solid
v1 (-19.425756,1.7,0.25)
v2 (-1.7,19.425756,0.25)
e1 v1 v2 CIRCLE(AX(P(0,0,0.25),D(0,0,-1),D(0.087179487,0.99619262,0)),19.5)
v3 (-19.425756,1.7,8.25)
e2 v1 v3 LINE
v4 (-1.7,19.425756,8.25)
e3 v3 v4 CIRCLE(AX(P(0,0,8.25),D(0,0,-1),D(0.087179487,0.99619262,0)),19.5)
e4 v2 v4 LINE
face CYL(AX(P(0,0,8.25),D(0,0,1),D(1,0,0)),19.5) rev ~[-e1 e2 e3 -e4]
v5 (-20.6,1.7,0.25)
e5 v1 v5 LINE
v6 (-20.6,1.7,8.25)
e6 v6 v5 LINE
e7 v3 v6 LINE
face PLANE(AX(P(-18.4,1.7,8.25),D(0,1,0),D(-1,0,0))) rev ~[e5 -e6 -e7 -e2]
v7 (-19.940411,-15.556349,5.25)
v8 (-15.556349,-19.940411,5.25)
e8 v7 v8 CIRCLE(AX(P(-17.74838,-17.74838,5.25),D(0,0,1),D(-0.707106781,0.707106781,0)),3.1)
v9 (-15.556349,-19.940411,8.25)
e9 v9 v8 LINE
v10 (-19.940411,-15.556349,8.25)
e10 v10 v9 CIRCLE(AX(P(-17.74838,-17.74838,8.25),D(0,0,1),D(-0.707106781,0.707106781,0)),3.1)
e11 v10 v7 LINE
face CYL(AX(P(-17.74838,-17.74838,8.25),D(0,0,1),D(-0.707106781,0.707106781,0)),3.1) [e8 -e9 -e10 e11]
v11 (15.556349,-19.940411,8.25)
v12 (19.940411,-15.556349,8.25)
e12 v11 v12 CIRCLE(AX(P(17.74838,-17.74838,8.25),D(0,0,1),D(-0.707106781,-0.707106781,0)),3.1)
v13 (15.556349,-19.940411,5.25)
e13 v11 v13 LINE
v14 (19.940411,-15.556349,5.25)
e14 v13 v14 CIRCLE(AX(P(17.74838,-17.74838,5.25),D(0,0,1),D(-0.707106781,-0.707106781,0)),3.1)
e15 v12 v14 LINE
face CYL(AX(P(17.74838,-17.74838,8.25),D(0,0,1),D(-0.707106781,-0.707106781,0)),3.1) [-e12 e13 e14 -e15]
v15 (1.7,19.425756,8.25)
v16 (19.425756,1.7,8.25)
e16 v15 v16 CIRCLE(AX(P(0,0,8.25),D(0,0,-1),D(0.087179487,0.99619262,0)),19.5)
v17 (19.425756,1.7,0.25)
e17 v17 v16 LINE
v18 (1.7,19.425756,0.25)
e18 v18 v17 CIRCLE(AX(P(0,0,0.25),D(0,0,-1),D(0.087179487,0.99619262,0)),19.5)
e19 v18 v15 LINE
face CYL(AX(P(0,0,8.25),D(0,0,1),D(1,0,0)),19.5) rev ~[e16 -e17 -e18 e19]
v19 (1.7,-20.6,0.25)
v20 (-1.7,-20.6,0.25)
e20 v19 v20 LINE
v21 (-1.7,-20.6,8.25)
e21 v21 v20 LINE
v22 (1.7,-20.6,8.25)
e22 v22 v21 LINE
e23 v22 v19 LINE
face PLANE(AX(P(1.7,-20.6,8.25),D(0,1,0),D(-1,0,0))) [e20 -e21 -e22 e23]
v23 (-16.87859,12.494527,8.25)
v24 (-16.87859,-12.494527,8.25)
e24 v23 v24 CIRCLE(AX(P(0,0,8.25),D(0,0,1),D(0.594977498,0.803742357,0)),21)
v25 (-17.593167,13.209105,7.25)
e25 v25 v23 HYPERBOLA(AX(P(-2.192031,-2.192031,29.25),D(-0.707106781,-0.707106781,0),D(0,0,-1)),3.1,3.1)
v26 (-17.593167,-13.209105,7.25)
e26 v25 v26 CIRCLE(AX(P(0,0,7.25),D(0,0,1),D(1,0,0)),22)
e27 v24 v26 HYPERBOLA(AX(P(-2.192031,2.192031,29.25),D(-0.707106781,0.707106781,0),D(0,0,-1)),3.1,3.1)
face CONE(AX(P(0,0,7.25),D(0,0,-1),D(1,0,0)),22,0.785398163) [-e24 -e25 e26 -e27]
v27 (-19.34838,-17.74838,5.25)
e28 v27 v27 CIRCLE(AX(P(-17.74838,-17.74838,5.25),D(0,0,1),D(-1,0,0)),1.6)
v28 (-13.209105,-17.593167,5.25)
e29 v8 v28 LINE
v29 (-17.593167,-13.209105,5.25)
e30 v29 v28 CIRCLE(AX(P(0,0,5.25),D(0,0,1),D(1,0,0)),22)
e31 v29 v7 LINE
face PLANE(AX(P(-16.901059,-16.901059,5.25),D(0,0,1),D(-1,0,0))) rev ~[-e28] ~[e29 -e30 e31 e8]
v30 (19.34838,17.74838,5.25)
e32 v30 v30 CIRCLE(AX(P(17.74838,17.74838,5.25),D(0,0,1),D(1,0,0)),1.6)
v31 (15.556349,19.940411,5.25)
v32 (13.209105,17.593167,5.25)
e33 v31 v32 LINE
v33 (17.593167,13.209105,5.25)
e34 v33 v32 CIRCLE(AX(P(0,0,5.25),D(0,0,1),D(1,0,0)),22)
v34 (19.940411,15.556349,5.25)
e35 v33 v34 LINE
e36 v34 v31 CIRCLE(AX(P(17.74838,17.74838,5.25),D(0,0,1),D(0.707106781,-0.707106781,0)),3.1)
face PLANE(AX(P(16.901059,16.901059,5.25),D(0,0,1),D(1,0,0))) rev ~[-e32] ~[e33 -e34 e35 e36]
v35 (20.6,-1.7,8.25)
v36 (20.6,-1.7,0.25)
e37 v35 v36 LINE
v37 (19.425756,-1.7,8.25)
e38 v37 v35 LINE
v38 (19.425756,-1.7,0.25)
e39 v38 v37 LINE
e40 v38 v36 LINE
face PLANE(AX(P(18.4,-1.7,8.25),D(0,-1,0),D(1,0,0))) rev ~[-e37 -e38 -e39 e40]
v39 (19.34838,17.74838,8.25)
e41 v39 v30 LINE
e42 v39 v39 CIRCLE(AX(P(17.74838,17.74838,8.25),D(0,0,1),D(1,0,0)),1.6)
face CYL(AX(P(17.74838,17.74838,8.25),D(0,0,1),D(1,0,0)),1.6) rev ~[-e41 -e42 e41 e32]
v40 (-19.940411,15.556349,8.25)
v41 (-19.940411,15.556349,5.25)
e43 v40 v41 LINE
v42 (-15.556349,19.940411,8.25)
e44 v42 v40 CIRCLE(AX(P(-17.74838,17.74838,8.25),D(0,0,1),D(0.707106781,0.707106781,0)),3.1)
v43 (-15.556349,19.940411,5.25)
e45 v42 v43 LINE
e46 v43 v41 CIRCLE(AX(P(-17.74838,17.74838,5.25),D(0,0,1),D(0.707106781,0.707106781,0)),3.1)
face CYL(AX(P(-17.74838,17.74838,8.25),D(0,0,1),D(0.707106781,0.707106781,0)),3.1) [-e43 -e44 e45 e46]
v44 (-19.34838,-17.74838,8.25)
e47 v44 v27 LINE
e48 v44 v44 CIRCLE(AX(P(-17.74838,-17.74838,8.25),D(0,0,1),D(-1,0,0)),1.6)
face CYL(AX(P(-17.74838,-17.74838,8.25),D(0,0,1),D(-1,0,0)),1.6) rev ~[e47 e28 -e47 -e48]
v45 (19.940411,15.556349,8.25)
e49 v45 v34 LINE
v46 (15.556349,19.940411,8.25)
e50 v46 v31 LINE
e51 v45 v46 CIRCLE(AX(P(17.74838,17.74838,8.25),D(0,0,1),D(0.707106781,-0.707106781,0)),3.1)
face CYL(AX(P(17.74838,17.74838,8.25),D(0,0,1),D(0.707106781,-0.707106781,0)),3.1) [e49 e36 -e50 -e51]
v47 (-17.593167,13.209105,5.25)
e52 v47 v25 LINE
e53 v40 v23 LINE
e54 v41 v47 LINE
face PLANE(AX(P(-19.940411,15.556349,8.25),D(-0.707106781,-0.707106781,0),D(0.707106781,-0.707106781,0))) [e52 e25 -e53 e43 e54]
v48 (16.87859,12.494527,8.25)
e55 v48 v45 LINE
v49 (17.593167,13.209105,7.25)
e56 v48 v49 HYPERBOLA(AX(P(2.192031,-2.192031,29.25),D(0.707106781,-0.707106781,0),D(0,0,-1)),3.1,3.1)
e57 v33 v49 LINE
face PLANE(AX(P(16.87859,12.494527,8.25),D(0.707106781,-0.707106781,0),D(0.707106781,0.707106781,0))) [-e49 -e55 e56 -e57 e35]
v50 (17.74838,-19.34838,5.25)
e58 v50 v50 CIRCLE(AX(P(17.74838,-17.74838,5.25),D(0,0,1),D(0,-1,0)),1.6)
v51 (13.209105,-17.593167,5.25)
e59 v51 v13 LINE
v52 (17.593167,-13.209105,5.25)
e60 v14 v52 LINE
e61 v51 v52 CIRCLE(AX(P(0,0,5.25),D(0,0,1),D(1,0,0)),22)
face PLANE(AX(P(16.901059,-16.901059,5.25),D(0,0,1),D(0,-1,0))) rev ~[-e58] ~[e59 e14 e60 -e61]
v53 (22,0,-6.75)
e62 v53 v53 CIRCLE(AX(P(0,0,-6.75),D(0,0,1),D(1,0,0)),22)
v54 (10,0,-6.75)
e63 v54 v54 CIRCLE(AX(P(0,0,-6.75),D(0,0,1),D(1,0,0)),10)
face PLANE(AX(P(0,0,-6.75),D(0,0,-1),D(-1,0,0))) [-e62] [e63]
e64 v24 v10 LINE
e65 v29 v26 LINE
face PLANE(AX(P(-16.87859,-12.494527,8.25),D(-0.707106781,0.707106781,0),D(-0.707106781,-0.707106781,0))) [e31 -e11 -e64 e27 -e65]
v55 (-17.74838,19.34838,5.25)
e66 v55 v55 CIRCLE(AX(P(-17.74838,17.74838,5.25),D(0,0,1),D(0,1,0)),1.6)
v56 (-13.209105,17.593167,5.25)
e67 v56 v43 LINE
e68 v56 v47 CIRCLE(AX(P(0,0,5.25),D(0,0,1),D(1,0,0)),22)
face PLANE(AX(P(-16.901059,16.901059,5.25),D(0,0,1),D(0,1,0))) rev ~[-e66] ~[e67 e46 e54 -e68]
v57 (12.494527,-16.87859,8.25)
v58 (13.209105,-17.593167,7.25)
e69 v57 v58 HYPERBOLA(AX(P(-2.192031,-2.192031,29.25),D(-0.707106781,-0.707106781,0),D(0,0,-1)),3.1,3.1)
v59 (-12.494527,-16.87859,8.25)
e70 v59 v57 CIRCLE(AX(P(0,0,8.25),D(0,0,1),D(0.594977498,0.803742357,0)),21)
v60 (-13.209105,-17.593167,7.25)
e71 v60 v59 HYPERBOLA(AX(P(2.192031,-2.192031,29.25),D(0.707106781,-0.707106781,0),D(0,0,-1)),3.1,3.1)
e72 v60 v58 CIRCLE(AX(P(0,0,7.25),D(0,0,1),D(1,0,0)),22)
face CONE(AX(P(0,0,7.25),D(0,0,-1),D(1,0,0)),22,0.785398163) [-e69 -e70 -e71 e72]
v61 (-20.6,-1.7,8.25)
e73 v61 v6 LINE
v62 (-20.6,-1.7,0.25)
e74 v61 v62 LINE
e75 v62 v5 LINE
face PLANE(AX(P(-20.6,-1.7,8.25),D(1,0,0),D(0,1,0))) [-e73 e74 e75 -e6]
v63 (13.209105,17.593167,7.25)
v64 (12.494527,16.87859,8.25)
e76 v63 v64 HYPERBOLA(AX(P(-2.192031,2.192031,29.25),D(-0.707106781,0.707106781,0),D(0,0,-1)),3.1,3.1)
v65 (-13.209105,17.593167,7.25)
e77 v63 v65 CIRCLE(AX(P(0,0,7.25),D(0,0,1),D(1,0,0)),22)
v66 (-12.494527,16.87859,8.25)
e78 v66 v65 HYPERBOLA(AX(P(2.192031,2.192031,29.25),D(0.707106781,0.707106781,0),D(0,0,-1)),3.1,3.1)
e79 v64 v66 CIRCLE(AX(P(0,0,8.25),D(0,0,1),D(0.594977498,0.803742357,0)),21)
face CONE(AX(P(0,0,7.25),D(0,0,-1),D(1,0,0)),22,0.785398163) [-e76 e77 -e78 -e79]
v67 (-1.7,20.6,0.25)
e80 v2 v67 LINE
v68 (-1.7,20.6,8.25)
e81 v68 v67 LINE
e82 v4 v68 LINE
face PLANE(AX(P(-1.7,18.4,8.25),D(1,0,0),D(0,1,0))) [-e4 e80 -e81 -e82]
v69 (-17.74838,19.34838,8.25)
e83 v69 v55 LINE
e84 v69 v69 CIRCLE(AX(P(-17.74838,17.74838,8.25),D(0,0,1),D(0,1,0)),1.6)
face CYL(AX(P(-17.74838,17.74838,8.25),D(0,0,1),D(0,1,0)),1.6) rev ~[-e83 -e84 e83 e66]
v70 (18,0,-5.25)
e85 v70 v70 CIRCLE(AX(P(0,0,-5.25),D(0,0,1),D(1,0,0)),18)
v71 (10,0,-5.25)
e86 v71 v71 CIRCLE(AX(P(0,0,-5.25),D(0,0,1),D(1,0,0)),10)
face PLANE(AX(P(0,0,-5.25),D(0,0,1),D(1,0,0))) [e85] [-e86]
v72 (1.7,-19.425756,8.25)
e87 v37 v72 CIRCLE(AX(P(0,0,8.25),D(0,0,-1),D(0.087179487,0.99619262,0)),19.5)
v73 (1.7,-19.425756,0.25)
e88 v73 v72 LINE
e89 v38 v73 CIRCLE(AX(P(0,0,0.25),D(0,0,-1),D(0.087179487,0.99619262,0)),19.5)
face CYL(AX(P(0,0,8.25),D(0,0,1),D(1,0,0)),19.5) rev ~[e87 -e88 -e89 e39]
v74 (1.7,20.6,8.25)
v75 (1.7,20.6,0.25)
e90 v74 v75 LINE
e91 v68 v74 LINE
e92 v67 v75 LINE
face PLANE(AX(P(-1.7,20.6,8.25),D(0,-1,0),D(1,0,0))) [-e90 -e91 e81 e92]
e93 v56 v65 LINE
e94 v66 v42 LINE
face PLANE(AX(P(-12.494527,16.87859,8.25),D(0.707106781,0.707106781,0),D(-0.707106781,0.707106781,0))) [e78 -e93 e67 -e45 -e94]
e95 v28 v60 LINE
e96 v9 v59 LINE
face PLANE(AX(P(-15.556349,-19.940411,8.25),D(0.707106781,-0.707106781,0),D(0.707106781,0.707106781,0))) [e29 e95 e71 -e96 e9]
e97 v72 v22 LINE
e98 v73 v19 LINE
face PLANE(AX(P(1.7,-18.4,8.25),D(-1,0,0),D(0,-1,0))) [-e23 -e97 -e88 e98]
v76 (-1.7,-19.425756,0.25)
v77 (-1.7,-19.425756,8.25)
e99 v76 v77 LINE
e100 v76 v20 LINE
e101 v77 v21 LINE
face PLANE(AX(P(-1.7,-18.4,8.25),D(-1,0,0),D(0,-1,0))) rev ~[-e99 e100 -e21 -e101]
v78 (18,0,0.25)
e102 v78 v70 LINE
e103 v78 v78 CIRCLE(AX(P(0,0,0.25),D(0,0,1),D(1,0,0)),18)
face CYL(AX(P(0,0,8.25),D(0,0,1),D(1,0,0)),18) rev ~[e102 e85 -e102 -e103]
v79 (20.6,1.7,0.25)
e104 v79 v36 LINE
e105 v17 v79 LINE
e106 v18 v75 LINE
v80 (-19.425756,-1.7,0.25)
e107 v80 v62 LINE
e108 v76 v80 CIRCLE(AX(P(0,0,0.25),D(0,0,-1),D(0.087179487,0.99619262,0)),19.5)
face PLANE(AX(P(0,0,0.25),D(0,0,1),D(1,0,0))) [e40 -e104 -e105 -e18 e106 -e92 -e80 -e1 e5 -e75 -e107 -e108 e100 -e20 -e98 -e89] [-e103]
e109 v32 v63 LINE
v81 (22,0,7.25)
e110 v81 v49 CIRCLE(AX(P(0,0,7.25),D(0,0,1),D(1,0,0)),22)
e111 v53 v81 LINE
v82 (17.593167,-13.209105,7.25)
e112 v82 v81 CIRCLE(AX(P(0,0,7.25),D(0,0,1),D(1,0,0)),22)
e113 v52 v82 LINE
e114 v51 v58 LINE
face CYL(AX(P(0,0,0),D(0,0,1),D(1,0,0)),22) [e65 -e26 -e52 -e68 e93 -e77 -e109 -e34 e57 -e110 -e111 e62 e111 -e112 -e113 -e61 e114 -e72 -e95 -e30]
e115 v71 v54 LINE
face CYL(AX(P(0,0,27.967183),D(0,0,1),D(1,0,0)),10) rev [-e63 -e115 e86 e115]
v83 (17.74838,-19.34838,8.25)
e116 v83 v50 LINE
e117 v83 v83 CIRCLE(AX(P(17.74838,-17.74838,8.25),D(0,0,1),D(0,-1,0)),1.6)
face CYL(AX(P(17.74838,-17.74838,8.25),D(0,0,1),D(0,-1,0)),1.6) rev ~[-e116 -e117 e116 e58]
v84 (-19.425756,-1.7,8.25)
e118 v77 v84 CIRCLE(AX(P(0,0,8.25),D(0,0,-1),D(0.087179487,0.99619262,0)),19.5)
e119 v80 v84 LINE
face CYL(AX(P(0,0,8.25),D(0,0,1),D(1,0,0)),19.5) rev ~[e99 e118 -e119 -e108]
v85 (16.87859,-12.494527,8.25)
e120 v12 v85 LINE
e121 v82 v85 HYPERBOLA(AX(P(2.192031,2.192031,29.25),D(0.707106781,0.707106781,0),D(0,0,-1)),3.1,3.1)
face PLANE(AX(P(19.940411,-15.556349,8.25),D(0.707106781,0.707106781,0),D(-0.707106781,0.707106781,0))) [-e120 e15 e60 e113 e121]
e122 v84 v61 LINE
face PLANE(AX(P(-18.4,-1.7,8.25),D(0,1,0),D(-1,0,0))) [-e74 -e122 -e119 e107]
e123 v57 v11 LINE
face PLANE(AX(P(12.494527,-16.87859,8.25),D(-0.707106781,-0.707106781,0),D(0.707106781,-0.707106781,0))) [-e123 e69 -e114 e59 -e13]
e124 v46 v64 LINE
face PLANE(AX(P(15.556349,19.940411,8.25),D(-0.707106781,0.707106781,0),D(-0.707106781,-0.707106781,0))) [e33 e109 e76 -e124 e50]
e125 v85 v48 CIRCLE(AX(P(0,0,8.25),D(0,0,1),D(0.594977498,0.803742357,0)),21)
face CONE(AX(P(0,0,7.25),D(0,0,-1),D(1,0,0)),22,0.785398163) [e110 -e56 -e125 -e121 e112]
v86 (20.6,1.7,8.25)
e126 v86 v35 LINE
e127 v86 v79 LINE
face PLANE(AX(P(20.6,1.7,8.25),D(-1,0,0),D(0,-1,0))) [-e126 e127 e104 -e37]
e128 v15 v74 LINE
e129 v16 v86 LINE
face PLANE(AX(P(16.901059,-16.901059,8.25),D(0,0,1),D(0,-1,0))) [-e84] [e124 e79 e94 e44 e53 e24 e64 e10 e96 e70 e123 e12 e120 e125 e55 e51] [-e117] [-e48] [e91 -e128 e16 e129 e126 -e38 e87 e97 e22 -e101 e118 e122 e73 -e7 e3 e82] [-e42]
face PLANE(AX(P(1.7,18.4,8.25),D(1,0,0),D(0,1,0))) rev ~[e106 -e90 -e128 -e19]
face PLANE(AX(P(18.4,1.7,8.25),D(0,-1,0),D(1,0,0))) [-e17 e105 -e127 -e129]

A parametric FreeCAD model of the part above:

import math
import FreeCAD as App
import Part
import Sketcher
from FreeCAD import Vector
Q = App.Units.Quantity


def edges_at(feature, points):
    """Names of the edges that pass closest to the given points."""
    edges = feature.Shape.Edges
    near = lambda p: min(range(len(edges)), key=lambda i: edges[i].distToShape(Part.Vertex(*p))[0])
    return sorted({f"Edge{near(p) + 1}" for p in points})

doc = App.newDocument("Part")
body = doc.addObject("PartDesign::Body", "Body")

# Sketch on XY plane
sketch1 = body.newObject("Sketcher::SketchObject", "Sketch")
sketch1.AttachmentSupport = (doc.getObject("XY_Plane"), [""])
sketch1.MapMode = "FlatFace"
sketch1.addGeometry(Part.Circle(Vector(0, 0, 0), Vector(0, 0, 1), 22), False)
sketch1.addConstraint([
    Sketcher.Constraint("Coincident", 0, 3, -1, 1),
    Sketcher.Constraint("Diameter", 0, 44.0),
])
pad1 = body.newObject("PartDesign::Pad", "Pad")
pad1.Profile = sketch1
pad1.Length = 16.5
pad1.Midplane = True

# Sketch on XY plane
sketch2 = body.newObject("Sketcher::SketchObject", "Sketch001")
sketch2.AttachmentSupport = (doc.getObject("XY_Plane"), [""])
sketch2.MapMode = "FlatFace"
sketch2.AttachmentOffset = App.Placement(Vector(0, 0, 8.25), App.Rotation())
sketch2.addGeometry(Part.Circle(Vector(0, 0, 0), Vector(0, 0, 1), 18), False)
sketch2.addConstraint([
    Sketcher.Constraint("Coincident", 0, 3, -1, 1),
    Sketcher.Constraint("Diameter", 0, 36.0),
])
pocket1 = body.newObject("PartDesign::Pocket", "Pocket")
pocket1.Profile = sketch2
pocket1.Length = 13.5

# Sketch on XY plane
sketch3 = body.newObject("Sketcher::SketchObject", "Sketch002")
sketch3.AttachmentSupport = (doc.getObject("XY_Plane"), [""])
sketch3.MapMode = "FlatFace"
sketch3.AttachmentOffset = App.Placement(Vector(0, 0, 8.25), App.Rotation())
sketch3.addGeometry(Part.Circle(Vector(0, 0, 0), Vector(0, 0, 1), 20), False)
sketch3.addConstraint([
    Sketcher.Constraint("Coincident", 0, 3, -1, 1),
    Sketcher.Constraint("Diameter", 0, 39.0),
])
pocket2 = body.newObject("PartDesign::Pocket", "Pocket001")
pocket2.Profile = sketch3
pocket2.Length = 8

# Sketch on XY plane
sketch4 = body.newObject("Sketcher::SketchObject", "Sketch003")
sketch4.AttachmentSupport = (doc.getObject("XY_Plane"), [""])
sketch4.MapMode = "FlatFace"
sketch4.AttachmentOffset = App.Placement(Vector(0, 0, -8.25), App.Rotation())
sketch4.addGeometry(Part.Circle(Vector(0, 0, 0), Vector(0, 0, 1), 10), False)
sketch4.addConstraint([
    Sketcher.Constraint("Coincident", 0, 3, -1, 1),
    Sketcher.Constraint("Diameter", 0, 20.0),
])
pocket3 = body.newObject("PartDesign::Pocket", "Pocket002")
pocket3.Profile = sketch4
pocket3.Type = "ThroughAll"
pocket3.Midplane = True

# Sketch on XY plane
sketch5 = body.newObject("Sketcher::SketchObject", "Sketch004")
sketch5.AttachmentSupport = (doc.getObject("XY_Plane"), [""])
sketch5.MapMode = "FlatFace"
sketch5.AttachmentOffset = App.Placement(Vector(0, 0, 8.25), App.Rotation())
sketch5.addGeometry([
    Part.LineSegment(Vector(-1.7, 20.6, 0), Vector(-1.7, 18.4, 0)),
    Part.LineSegment(Vector(-1.7, 18.4, 0), Vector(1.7, 18.4, 0)),
    Part.LineSegment(Vector(1.7, 18.4, 0), Vector(1.7, 20.6, 0)),
    Part.LineSegment(Vector(1.7, 20.6, 0), Vector(-1.7, 20.6, 0)),
], False)
sketch5.addConstraint([
    Sketcher.Constraint("Coincident", 0, 2, 1, 1),
    Sketcher.Constraint("Coincident", 1, 2, 2, 1),
    Sketcher.Constraint("Coincident", 2, 2, 3, 1),
    Sketcher.Constraint("Coincident", 3, 2, 0, 1),
    Sketcher.Constraint("Vertical", 0),
    Sketcher.Constraint("Horizontal", 1),
    Sketcher.Constraint("Vertical", 2),
    Sketcher.Constraint("Horizontal", 3),
    Sketcher.Constraint("DistanceX", 1, 1, 1, 2, 3.4),
    Sketcher.Constraint("DistanceY", 0, 2, 0, 1, 2.2),
    Sketcher.Constraint("DistanceX", 0, 2, -1, 1, 1.7),
    Sketcher.Constraint("DistanceY", -1, 1, 0, 2, 18.4),
])
pocket4 = body.newObject("PartDesign::Pocket", "Pocket003")
pocket4.Profile = sketch5
pocket4.Length = 8
doc.recompute()

polarpattern = body.newObject("PartDesign::PolarPattern", "PolarPattern")
polarpattern.Originals = [pocket4]
polarpattern.Axis = (doc.getObject("Z_Axis"), [""])
polarpattern.Angle = 360
polarpattern.Occurrences = 4
body.Tip = polarpattern

# Sketch on XY plane
sketch6 = body.newObject("Sketcher::SketchObject", "Sketch005")
sketch6.AttachmentSupport = (doc.getObject("XY_Plane"), [""])
sketch6.MapMode = "FlatFace"
sketch6.AttachmentOffset = App.Placement(Vector(0, 0, -6.75), App.Rotation())
sketch6.addGeometry(Part.Circle(Vector(0, 0, 0), Vector(0, 0, 1), 22), False)
sketch6.addConstraint([
    Sketcher.Constraint("Coincident", 0, 3, -1, 1),
    Sketcher.Constraint("Diameter", 0, 44.0),
])
pocket5 = body.newObject("PartDesign::Pocket", "Pocket004")
pocket5.Profile = sketch6
pocket5.Length = 1.5
doc.recompute()

chamfer = body.newObject("PartDesign::Chamfer", "Chamfer")
chamfer.Base = (pocket5, edges_at(pocket5, [(-22, 0, 8.25)]))
chamfer.Size = 1

# Sketch on XY plane
sketch7 = body.newObject("Sketcher::SketchObject", "Sketch006")
sketch7.AttachmentSupport = (doc.getObject("XY_Plane"), [""])
sketch7.MapMode = "FlatFace"
sketch7.AttachmentOffset = App.Placement(Vector(0, 0, 8.25), App.Rotation())
sketch7.addGeometry([
    Part.LineSegment(Vector(15.6, 19.9, 0), Vector(12.5, 16.9, 0)),  # 0
    Part.LineSegment(Vector(12.5, 16.9, 0), Vector(16.9, 12.5, 0)),  # 1
    Part.LineSegment(Vector(16.9, 12.5, 0), Vector(19.9, 15.6, 0)),  # 2
    Part.ArcOfCircle(Part.Circle(Vector(17.7, 17.7, 0), Vector(0, 0, 1), 3.1), math.radians(-45), math.radians(135)),  # 3
    Part.Circle(Vector(17.7, 17.7, 0), Vector(0, 0, 1), 1.6),  # 4
], False)
sketch7.addConstraint([
    Sketcher.Constraint("Coincident", 0, 2, 1, 1),
    Sketcher.Constraint("Coincident", 1, 2, 2, 1),
    Sketcher.Constraint("Tangent", 2, 2, 3, 1),
    Sketcher.Constraint("Tangent", 3, 2, 0, 1),
    Sketcher.Constraint("Coincident", 4, 3, 3, 3),
    Sketcher.Constraint("Perpendicular", 0, 1),
    Sketcher.Constraint("Perpendicular", 1, 2),
    Sketcher.Constraint("Diameter", 4, 3.2),
    Sketcher.Constraint("Radius", 3, 3.1),
    Sketcher.Constraint("Angle", 0, Q("-135 deg")),
    Sketcher.Constraint("Distance", 0, 4.33007),
    Sketcher.Constraint("DistanceX", -1, 1, 3, 3, 17.74838),
    Sketcher.Constraint("DistanceY", -1, 1, 3, 3, 17.74838),
])
pad2 = body.newObject("PartDesign::Pad", "Pad001")
pad2.Profile = sketch7
pad2.Length = 3
pad2.Reversed = True
doc.recompute()

polarpattern2 = body.newObject("PartDesign::PolarPattern", "PolarPattern001")
polarpattern2.Originals = [pad2]
polarpattern2.Axis = (doc.getObject("Z_Axis"), [""])
polarpattern2.Angle = 360
polarpattern2.Occurrences = 4
body.Tip = polarpattern2

doc.recompute()
